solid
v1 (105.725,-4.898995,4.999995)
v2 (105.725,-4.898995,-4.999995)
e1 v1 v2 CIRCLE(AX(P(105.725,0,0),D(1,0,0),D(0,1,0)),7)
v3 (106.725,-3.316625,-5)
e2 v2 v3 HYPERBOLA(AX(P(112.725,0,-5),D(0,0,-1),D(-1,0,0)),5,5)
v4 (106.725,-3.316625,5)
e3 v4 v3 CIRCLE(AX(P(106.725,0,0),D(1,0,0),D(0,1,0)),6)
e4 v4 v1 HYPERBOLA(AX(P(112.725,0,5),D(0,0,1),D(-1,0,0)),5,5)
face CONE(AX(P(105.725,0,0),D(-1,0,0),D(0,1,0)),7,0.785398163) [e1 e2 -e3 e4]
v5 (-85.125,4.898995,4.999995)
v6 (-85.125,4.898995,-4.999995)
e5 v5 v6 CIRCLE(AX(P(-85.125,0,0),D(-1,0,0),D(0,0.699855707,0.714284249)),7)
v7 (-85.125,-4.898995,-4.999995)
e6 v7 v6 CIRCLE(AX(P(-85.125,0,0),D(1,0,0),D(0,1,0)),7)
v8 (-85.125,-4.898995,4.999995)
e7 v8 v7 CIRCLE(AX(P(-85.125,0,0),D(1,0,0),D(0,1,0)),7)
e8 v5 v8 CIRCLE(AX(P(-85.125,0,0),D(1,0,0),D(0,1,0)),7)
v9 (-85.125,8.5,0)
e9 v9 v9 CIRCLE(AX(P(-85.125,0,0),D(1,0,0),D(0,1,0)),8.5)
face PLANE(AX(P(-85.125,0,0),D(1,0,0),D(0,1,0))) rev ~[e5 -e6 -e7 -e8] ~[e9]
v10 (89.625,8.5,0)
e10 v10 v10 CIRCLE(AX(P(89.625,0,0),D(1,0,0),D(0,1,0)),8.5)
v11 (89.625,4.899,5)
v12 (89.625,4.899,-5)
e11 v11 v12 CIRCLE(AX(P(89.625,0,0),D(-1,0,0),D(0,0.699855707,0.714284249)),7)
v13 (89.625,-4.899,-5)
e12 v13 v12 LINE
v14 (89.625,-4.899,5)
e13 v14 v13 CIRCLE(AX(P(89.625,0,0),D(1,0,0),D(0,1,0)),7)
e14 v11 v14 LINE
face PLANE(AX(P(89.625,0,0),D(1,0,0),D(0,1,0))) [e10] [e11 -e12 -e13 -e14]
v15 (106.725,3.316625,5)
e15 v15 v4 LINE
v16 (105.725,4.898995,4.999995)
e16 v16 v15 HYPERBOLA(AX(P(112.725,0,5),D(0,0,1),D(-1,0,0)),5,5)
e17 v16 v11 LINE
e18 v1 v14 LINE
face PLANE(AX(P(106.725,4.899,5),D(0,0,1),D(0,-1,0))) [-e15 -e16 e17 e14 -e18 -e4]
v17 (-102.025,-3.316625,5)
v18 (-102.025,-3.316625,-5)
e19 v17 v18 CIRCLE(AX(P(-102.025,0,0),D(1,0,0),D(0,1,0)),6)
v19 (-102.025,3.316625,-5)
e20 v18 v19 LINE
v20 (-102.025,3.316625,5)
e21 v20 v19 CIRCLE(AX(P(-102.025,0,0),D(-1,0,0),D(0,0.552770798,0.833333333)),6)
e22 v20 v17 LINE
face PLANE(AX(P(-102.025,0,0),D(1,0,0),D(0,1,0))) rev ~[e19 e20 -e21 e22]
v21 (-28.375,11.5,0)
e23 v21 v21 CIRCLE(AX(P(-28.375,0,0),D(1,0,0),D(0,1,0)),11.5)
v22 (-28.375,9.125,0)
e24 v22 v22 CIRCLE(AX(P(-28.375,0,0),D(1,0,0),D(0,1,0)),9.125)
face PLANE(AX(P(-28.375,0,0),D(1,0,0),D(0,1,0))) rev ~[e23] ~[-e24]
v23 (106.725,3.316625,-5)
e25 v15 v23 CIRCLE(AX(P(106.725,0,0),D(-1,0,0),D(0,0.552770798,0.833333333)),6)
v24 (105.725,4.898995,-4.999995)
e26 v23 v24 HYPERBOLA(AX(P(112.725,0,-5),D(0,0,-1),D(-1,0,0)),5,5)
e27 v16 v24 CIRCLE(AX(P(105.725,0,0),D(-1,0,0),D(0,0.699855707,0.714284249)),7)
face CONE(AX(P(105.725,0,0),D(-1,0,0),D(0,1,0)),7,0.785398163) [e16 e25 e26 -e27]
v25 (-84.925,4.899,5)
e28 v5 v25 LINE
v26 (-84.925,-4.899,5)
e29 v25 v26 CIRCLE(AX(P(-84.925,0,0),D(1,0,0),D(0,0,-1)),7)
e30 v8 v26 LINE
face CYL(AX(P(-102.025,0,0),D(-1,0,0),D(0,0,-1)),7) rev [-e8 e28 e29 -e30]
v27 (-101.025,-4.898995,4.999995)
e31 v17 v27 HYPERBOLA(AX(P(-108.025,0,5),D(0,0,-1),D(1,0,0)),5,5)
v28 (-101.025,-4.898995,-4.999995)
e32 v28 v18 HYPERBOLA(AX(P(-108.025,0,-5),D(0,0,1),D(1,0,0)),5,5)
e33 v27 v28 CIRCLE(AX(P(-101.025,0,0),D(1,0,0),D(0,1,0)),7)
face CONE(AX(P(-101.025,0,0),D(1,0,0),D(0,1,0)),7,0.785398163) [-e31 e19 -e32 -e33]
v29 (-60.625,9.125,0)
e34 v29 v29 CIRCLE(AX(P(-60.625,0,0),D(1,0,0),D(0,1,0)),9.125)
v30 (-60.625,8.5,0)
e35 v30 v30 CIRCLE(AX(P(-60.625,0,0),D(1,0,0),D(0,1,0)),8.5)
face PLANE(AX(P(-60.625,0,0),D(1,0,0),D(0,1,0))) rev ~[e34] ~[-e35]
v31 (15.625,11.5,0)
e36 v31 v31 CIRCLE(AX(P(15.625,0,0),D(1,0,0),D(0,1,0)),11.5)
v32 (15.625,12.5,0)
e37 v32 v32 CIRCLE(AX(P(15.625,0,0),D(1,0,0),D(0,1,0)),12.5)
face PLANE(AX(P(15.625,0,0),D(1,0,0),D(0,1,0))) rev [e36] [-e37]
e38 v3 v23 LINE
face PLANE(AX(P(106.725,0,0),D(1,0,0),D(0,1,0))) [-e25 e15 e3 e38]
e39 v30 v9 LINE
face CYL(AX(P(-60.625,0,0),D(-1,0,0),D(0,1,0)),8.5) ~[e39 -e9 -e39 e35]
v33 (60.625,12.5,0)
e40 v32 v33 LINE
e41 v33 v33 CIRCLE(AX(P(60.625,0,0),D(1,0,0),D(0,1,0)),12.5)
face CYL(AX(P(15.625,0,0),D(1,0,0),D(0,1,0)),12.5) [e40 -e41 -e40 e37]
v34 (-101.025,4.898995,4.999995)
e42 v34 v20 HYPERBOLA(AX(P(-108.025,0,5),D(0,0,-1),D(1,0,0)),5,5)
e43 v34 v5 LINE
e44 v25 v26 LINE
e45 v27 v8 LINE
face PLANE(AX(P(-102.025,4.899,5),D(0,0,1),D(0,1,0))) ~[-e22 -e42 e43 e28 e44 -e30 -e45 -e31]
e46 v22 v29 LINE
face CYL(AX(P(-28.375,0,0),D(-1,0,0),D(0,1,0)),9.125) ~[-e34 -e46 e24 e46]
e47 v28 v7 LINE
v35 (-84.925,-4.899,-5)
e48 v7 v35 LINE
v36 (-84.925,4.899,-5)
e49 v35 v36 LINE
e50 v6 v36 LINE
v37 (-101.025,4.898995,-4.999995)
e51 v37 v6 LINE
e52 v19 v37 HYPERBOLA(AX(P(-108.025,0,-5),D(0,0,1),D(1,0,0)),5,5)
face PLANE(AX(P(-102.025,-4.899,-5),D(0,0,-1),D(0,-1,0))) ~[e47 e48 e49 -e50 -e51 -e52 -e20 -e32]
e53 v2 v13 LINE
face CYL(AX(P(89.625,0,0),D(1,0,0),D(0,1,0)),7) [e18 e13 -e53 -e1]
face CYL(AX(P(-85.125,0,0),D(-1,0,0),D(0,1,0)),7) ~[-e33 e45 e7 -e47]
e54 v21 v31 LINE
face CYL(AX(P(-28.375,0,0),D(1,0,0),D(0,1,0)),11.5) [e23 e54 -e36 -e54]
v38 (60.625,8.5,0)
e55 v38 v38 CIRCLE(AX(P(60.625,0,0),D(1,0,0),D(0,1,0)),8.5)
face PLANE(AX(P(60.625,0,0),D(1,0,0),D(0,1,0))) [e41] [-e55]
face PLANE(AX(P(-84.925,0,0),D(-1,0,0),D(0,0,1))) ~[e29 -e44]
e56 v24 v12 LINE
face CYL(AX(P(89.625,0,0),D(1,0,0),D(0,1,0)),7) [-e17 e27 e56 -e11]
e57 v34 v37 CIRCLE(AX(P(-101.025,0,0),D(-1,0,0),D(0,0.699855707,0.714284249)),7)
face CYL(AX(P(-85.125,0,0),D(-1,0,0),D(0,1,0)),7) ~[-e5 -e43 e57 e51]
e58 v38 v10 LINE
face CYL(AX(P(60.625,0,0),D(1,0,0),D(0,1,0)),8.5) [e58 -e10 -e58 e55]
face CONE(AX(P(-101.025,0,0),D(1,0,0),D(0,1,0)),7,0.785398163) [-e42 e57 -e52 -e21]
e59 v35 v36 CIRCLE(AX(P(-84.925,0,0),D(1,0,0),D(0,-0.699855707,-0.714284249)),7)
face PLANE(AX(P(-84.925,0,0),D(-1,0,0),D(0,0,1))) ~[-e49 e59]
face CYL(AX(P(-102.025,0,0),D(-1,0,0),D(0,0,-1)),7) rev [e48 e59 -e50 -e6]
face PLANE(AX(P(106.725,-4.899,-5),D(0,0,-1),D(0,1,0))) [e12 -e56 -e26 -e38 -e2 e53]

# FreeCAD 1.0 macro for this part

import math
import FreeCAD as App
import Part
import Sketcher
from FreeCAD import Vector
Q = App.Units.Quantity


def edges_at(feature, points):
    """Names of the edges that pass closest to the given points."""
    edges = feature.Shape.Edges
    near = lambda p: min(range(len(edges)), key=lambda i: edges[i].distToShape(Part.Vertex(*p))[0])
    return sorted({f"Edge{near(p) + 1}" for p in points})


def add_polygon(sketch, points):
    """Adds a closed chain of lines whose ends are joined by coincident constraints."""
    first, n = sketch.GeometryCount, len(points)
    for a, b in zip(points, points[1:] + points[:1]):
        sketch.addGeometry(Part.LineSegment(App.Vector(*a, 0), App.Vector(*b, 0)), False)
    for i in range(n):
        sketch.addConstraint(Sketcher.Constraint("Coincident", first + i, 2, first + (i + 1) % n, 1))

doc = App.newDocument("Part")
body = doc.addObject("PartDesign::Body", "Body")

# Sketch on XY plane
sketch1 = doc.addObject("Sketcher::SketchObject", "Sketch")
body.addObject(sketch1)
sketch1.AttachmentSupport = (doc.XY_Plane, [""])
sketch1.MapMode = "FlatFace"
add_polygon(sketch1, [(-102, 7), (-102, 0), (106.7, 0), (106.7, 7), (89.6, 7), (89.6, 8.5), (60.6, 8.5), (60.6, 12.5), (15.6, 12.5), (15.6, 11.5), (-28.4, 11.5), (-28.4, 9.1), (-60.6, 9.1), (-60.6, 8.5), (-85.1, 8.5), (-85.1, 7)])  # lines 0-15
sketch1.addConstraint([
    Sketcher.Constraint("Vertical", 0),
    Sketcher.Constraint("Horizontal", 1),
    Sketcher.Constraint("Vertical", 2),
    Sketcher.Constraint("Horizontal", 3),
    Sketcher.Constraint("Vertical", 4),
    Sketcher.Constraint("Horizontal", 5),
    Sketcher.Constraint("Vertical", 6),
    Sketcher.Constraint("Horizontal", 7),
    Sketcher.Constraint("Vertical", 8),
    Sketcher.Constraint("Horizontal", 9),
    Sketcher.Constraint("Vertical", 10),
    Sketcher.Constraint("Horizontal", 11),
    Sketcher.Constraint("Vertical", 12),
    Sketcher.Constraint("Horizontal", 13),
    Sketcher.Constraint("Vertical", 14),
    Sketcher.Constraint("Horizontal", 15),
    Sketcher.Constraint("Symmetric", 5, 2, 12, 2, -2),
    Sketcher.Constraint("PointOnObject", 0, 2, -1),
    Sketcher.Constraint("Horizontal", 3, 2, 14, 2),
    Sketcher.Constraint("DistanceX", 5, 2, 5, 1, Q("29 mm")),
    Sketcher.Constraint("DistanceX", 7, 2, 7, 1, Q("45 mm")),
    Sketcher.Constraint("DistanceX", 3, 2, 3, 1, Q("17.1 mm")),
    Sketcher.Constraint("DistanceX", 13, 2, 13, 1, Q("24.5 mm")),
    Sketcher.Constraint("DistanceX", 15, 2, 15, 1, Q("16.9 mm")),
    Sketcher.Constraint("DistanceX", 9, 2, 6, 2, Q("89 mm")),
    Sketcher.Constraint("DistanceX", 11, 2, 11, 1, Q("32.25 mm")),
    Sketcher.Constraint("DistanceY", 0, 2, 0, 1, Q("7 mm")),
    Sketcher.Constraint("DistanceY", 6, 1, 6, 2, Q("4 mm")),
    Sketcher.Constraint("DistanceY", 8, 2, 8, 1, Q("1 mm")),
    Sketcher.Constraint("DistanceY", 4, 1, 4, 2, Q("1.5 mm")),
    Sketcher.Constraint("DistanceY", 10, 2, 10, 1, Q("2.375 mm")),
])
revolution = doc.addObject("PartDesign::Revolution", "Revolution")
body.addObject(revolution)
revolution.Profile = sketch1
revolution.ReferenceAxis = (sketch1, ["H_Axis"])
revolution.Angle = 360
doc.recompute()

chamfer = doc.addObject("PartDesign::Chamfer", "Chamfer")
body.addObject(chamfer)
chamfer.Base = (revolution, edges_at(revolution, [(106.725, -7, 0), (-102.025, -7, 0)]))
chamfer.Size = 1

# Sketch on YZ plane
sketch2 = doc.addObject("Sketcher::SketchObject", "Sketch001")
body.addObject(sketch2)
sketch2.AttachmentSupport = (doc.YZ_Plane, [""])
sketch2.MapMode = "FlatFace"
sketch2.AttachmentOffset = App.Placement(Vector(0, 0, 106.725), App.Rotation())
sketch2.addGeometry([
    Part.ArcOfCircle(Part.Circle(Vector(0, 0, 0), Vector(0, 0, 1), 7), math.radians(-134), math.radians(-46)),
    Part.LineSegment(Vector(-5, -5, 0), Vector(5, -5, 0)),
    Part.LineSegment(Vector(-5, 5, 0), Vector(5, 5, 0)),
    Part.ArcOfCircle(Part.Circle(Vector(0, 0, 0), Vector(0, 0, 1), 7), math.radians(46), math.radians(134)),
], False)
sketch2.addConstraint([
    Sketcher.Constraint("Coincident", 0, 1, 1, 1),
    Sketcher.Constraint("Coincident", 1, 2, 0, 2),
    Sketcher.Constraint("Coincident", 2, 1, 3, 2),
    Sketcher.Constraint("Coincident", 3, 1, 2, 2),
    Sketcher.Constraint("Horizontal", 1),
    Sketcher.Constraint("Horizontal", 2),
    Sketcher.Constraint("Coincident", 0, 3, -1, 1),
    Sketcher.Constraint("Coincident", 3, 3, -1, 1),
    Sketcher.Constraint("Equal", 0, 3),
    Sketcher.Constraint("Vertical", 0, 1, 2, 1),
    Sketcher.Constraint("Radius", 0, Q("7 mm")),
    Sketcher.Constraint("DistanceY", 0, 1, 2, 1, Q("10 mm")),
])
pocket1 = doc.addObject("PartDesign::Pocket", "Pocket")
body.addObject(pocket1)
pocket1.Profile = sketch2
pocket1.Length = 17.1
doc.recompute()

datumplane = doc.addObject("PartDesign::Plane", "DatumPlane")
body.addObject(datumplane)
datumplane.AttachmentSupport = (doc.YZ_Plane, [""])
datumplane.MapMode = "FlatFace"
datumplane.AttachmentOffset = App.Placement(Vector(0, 0, 2.35), App.Rotation())
mirrored = doc.addObject("PartDesign::Mirrored", "Mirrored")
body.addObject(mirrored)
mirrored.Originals = [pocket1]
mirrored.MirrorPlane = (datumplane, [""])
body.Tip = mirrored

doc.recompute()
